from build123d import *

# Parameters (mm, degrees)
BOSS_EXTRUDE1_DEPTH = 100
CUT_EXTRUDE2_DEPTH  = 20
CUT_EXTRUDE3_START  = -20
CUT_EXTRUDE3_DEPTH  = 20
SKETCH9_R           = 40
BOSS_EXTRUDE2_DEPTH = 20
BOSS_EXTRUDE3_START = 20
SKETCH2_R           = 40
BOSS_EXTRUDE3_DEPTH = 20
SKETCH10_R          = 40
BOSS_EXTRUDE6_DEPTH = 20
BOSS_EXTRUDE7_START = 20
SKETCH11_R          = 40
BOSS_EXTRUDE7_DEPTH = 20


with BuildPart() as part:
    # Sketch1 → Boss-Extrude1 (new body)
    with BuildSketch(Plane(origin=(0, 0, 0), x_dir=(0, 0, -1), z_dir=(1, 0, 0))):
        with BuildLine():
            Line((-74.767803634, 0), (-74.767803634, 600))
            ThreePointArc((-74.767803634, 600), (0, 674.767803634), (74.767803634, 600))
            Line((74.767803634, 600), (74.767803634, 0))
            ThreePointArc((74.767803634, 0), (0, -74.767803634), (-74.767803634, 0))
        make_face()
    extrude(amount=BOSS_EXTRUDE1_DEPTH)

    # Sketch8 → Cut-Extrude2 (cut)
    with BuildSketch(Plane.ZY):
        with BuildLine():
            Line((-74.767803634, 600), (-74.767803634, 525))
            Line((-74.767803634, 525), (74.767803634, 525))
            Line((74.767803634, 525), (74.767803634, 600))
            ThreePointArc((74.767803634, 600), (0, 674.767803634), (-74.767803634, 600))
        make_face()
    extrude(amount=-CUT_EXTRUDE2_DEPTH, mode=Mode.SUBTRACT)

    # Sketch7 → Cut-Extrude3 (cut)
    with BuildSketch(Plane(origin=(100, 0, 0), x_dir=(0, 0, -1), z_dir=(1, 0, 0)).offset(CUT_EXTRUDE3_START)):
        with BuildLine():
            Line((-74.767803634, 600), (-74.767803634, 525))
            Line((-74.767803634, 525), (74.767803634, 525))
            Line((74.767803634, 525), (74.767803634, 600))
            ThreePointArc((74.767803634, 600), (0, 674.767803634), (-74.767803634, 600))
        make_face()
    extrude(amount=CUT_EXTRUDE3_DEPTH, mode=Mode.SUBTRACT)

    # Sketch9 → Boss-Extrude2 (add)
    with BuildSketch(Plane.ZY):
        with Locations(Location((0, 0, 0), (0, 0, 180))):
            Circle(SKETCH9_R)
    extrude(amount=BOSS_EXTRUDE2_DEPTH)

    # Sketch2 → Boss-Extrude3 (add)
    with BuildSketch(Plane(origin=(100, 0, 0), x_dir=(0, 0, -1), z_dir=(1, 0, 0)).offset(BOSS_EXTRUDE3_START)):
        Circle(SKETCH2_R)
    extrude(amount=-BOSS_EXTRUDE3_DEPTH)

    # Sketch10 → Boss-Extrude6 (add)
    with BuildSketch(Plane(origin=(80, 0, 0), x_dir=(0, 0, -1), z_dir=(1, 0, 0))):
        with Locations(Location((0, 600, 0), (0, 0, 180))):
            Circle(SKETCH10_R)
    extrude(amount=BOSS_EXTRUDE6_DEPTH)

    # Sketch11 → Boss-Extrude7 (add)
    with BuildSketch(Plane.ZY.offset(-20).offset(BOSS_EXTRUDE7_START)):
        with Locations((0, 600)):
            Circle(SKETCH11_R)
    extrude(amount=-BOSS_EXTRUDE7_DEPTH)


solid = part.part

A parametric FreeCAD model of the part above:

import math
import FreeCAD as App
import Part
import Sketcher
from FreeCAD import Vector

doc = App.newDocument("Part")
params = doc.addObject("Spreadsheet::Sheet", "Params")
for row, (alias, value) in enumerate([
    ("sketch1_width", "600 mm"),
    ("pad1_length", "100 mm"),
    ("sketch2_width", "75 mm"),
    ("pocket1_length", "20 mm"),
    ("sketch3_width", "75 mm"),
    ("pocket2_length", "20 mm"),
    ("sketch4_diameter", "80 mm"),
    ("pad2_length", "20 mm"),
    ("sketch5_diameter", "80 mm"),
    ("pad3_length", "20 mm"),
    ("sketch6_diameter", "80 mm"),
    ("pad4_length", "20 mm"),
    ("sketch7_diameter", "80 mm"),
    ("pad5_length", "20 mm"),
], start=1):
    params.set(f"A{row}", alias)
    params.set(f"B{row}", "=" + value)
    params.setAlias(f"B{row}", alias)

body = doc.addObject("PartDesign::Body", "Body")

sketch1 = body.newObject("Sketcher::SketchObject", "Sketch")
sketch1.AttachmentSupport = (doc.getObject("YZ_Plane"), [""])
sketch1.MapMode = "FlatFace"
sketch1.addGeometry([
    Part.LineSegment(Vector(600, 75, 0), Vector(0, 75, 0)),
    Part.ArcOfCircle(Part.Circle(Vector(0, 0, 0), Vector(0, 0, 1), 75), math.radians(90), math.radians(270)),
    Part.LineSegment(Vector(0, -75, 0), Vector(600, -75, 0)),
    Part.ArcOfCircle(Part.Circle(Vector(600, 0, 0), Vector(0, 0, 1), 75), math.radians(-90), math.radians(90)),
], False)
sketch1.addConstraint([
    Sketcher.Constraint("Tangent", 0, 2, 1, 1),
    Sketcher.Constraint("Tangent", 1, 2, 2, 1),
    Sketcher.Constraint("Tangent", 2, 2, 3, 1),
    Sketcher.Constraint("Tangent", 3, 2, 0, 1),
    Sketcher.Constraint("Horizontal", 0),
    Sketcher.Constraint("Horizontal", 2),
    Sketcher.Constraint("Coincident", 1, 3, -1, 1),
    Sketcher.Constraint("DistanceX", 0, 2, 0, 1, 600.0),
    Sketcher.Constraint("Radius", 1, 74.767804),
])
sketch1.setExpression("Constraints[7]", "Params.sketch1_width")
pad1 = body.newObject("PartDesign::Pad", "Pad")
pad1.Profile = sketch1
pad1.setExpression("Length", "Params.pad1_length")

sketch2 = body.newObject("Sketcher::SketchObject", "Sketch001")
sketch2.AttachmentSupport = (doc.getObject("YZ_Plane"), [""])
sketch2.MapMode = "FlatFace"
sketch2.addGeometry([
    Part.LineSegment(Vector(600, -75, 0), Vector(525, -75, 0)),
    Part.LineSegment(Vector(525, -75, 0), Vector(525, 75, 0)),
    Part.LineSegment(Vector(525, 75, 0), Vector(600, 75, 0)),
    Part.ArcOfCircle(Part.Circle(Vector(600, 0, 0), Vector(0, 0, 1), 75), math.radians(-90), math.radians(90)),
], False)
sketch2.addConstraint([
    Sketcher.Constraint("Coincident", 0, 2, 1, 1),
    Sketcher.Constraint("Coincident", 1, 2, 2, 1),
    Sketcher.Constraint("Tangent", 2, 2, 3, 2),
    Sketcher.Constraint("Tangent", 3, 1, 0, 1),
    Sketcher.Constraint("Horizontal", 0),
    Sketcher.Constraint("Vertical", 1),
    Sketcher.Constraint("Horizontal", 2),
    Sketcher.Constraint("PointOnObject", 3, 3, -1),
    Sketcher.Constraint("DistanceX", 0, 2, 0, 1, 75.0),
    Sketcher.Constraint("DistanceX", -1, 1, 3, 3, 600.0),
    Sketcher.Constraint("Radius", 3, 74.767804),
])
sketch2.setExpression("Constraints[8]", "Params.sketch2_width")
pocket1 = body.newObject("PartDesign::Pocket", "Pocket")
pocket1.Profile = sketch2
pocket1.setExpression("Length", "Params.pocket1_length")
pocket1.Reversed = True

sketch3 = body.newObject("Sketcher::SketchObject", "Sketch002")
sketch3.AttachmentSupport = (doc.getObject("YZ_Plane"), [""])
sketch3.MapMode = "FlatFace"
sketch3.AttachmentOffset = App.Placement(Vector(0, 0, 80), App.Rotation())
sketch3.addGeometry([
    Part.LineSegment(Vector(600, 75, 0), Vector(525, 75, 0)),
    Part.LineSegment(Vector(525, 75, 0), Vector(525, -75, 0)),
    Part.LineSegment(Vector(525, -75, 0), Vector(600, -75, 0)),
    Part.ArcOfCircle(Part.Circle(Vector(600, 0, 0), Vector(0, 0, 1), 75), math.radians(-90), math.radians(90)),
], False)
sketch3.addConstraint([
    Sketcher.Constraint("Coincident", 0, 2, 1, 1),
    Sketcher.Constraint("Coincident", 1, 2, 2, 1),
    Sketcher.Constraint("Tangent", 2, 2, 3, 1),
    Sketcher.Constraint("Tangent", 3, 2, 0, 1),
    Sketcher.Constraint("Horizontal", 0),
    Sketcher.Constraint("Vertical", 1),
    Sketcher.Constraint("Horizontal", 2),
    Sketcher.Constraint("PointOnObject", 3, 3, -1),
    Sketcher.Constraint("DistanceX", 0, 2, 0, 1, 75.0),
    Sketcher.Constraint("DistanceX", -1, 1, 3, 3, 600.0),
    Sketcher.Constraint("Radius", 3, 74.767804),
])
sketch3.setExpression("Constraints[8]", "Params.sketch3_width")
pocket2 = body.newObject("PartDesign::Pocket", "Pocket001")
pocket2.Profile = sketch3
pocket2.setExpression("Length", "Params.pocket2_length")
pocket2.Reversed = True

sketch4 = body.newObject("Sketcher::SketchObject", "Sketch003")
sketch4.AttachmentSupport = (doc.getObject("YZ_Plane"), [""])
sketch4.MapMode = "FlatFace"
sketch4.addGeometry(Part.Circle(Vector(0, 0, 0), Vector(0, 0, 1), 40), False)
sketch4.addConstraint([
    Sketcher.Constraint("Coincident", 0, 3, -1, 1),
    Sketcher.Constraint("Diameter", 0, 80.0),
])
sketch4.setExpression("Constraints[1]", "Params.sketch4_diameter")
pad2 = body.newObject("PartDesign::Pad", "Pad001")
pad2.Profile = sketch4
pad2.setExpression("Length", "Params.pad2_length")
pad2.Reversed = True

sketch5 = body.newObject("Sketcher::SketchObject", "Sketch004")
sketch5.AttachmentSupport = (doc.getObject("YZ_Plane"), [""])
sketch5.MapMode = "FlatFace"
sketch5.AttachmentOffset = App.Placement(Vector(0, 0, 120), App.Rotation())
sketch5.addGeometry(Part.Circle(Vector(0, 0, 0), Vector(0, 0, 1), 40), False)
sketch5.addConstraint([
    Sketcher.Constraint("Coincident", 0, 3, -1, 1),
    Sketcher.Constraint("Diameter", 0, 80.0),
])
sketch5.setExpression("Constraints[1]", "Params.sketch5_diameter")
pad3 = body.newObject("PartDesign::Pad", "Pad002")
pad3.Profile = sketch5
pad3.setExpression("Length", "Params.pad3_length")
pad3.Reversed = True

sketch6 = body.newObject("Sketcher::SketchObject", "Sketch005")
sketch6.AttachmentSupport = (doc.getObject("YZ_Plane"), [""])
sketch6.MapMode = "FlatFace"
sketch6.AttachmentOffset = App.Placement(Vector(0, 0, 80), App.Rotation())
sketch6.addGeometry(Part.Circle(Vector(600, 0, 0), Vector(0, 0, 1), 40), False)
sketch6.addConstraint([
    Sketcher.Constraint("PointOnObject", 0, 3, -1),
    Sketcher.Constraint("Diameter", 0, 80.0),
    Sketcher.Constraint("DistanceX", -1, 1, 0, 3, 600.0),
])
sketch6.setExpression("Constraints[1]", "Params.sketch6_diameter")
pad4 = body.newObject("PartDesign::Pad", "Pad003")
pad4.Profile = sketch6
pad4.setExpression("Length", "Params.pad4_length")

sketch7 = body.newObject("Sketcher::SketchObject", "Sketch006")
sketch7.AttachmentSupport = (doc.getObject("YZ_Plane"), [""])
sketch7.MapMode = "FlatFace"
sketch7.addGeometry(Part.Circle(Vector(600, 0, 0), Vector(0, 0, 1), 40), False)
sketch7.addConstraint([
    Sketcher.Constraint("PointOnObject", 0, 3, -1),
    Sketcher.Constraint("Diameter", 0, 80.0),
    Sketcher.Constraint("DistanceX", -1, 1, 0, 3, 600.0),
])
sketch7.setExpression("Constraints[1]", "Params.sketch7_diameter")
pad5 = body.newObject("PartDesign::Pad", "Pad004")
pad5.Profile = sketch7
pad5.setExpression("Length", "Params.pad5_length")

doc.recompute()
